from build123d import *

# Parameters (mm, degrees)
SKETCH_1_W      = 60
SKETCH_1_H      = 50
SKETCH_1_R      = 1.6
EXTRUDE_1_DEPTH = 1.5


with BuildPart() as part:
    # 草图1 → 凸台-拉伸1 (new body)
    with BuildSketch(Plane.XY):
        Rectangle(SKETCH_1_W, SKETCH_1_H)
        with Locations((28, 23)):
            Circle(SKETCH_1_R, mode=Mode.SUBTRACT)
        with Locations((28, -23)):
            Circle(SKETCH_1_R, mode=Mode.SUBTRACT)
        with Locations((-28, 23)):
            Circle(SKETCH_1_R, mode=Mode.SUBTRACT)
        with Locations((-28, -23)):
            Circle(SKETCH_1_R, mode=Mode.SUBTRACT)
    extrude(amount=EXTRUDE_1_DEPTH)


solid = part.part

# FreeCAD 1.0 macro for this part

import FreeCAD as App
import Part
import Sketcher
Q = App.Units.Quantity

doc = App.newDocument("Part")
body = doc.addObject("PartDesign::Body", "Body")

# Sketch on XY plane
sketch1 = body.newObject("Sketcher::SketchObject", "Sketch")
sketch1.AttachmentSupport = (doc.getObject("XY_Plane"), [""])
sketch1.MapMode = "FlatFace"
sketch1.addGeometry([
    Part.LineSegment(App.Vector(-30, 25, 0), App.Vector(-30, -25, 0)),  # 0
    Part.LineSegment(App.Vector(-30, -25, 0), App.Vector(30, -25, 0)),  # 1
    Part.LineSegment(App.Vector(30, -25, 0), App.Vector(30, 25, 0)),  # 2
    Part.LineSegment(App.Vector(30, 25, 0), App.Vector(-30, 25, 0)),  # 3
    Part.Circle(App.Vector(-28, -23, 0), App.Vector(0, 0, 1), 1.6),  # 4
    Part.Circle(App.Vector(28, -23, 0), App.Vector(0, 0, 1), 1.6),  # 5
    Part.Circle(App.Vector(-28, 23, 0), App.Vector(0, 0, 1), 1.6),  # 6
    Part.Circle(App.Vector(28, 23, 0), App.Vector(0, 0, 1), 1.6),  # 7
], False)
sketch1.addConstraint([
    Sketcher.Constraint("Coincident", 0, 2, 1, 1),
    Sketcher.Constraint("Coincident", 1, 2, 2, 1),
    Sketcher.Constraint("Coincident", 2, 2, 3, 1),
    Sketcher.Constraint("Coincident", 3, 2, 0, 1),
    Sketcher.Constraint("Vertical", 0),
    Sketcher.Constraint("Horizontal", 1),
    Sketcher.Constraint("Vertical", 2),
    Sketcher.Constraint("Horizontal", 3),
    Sketcher.Constraint("Equal", 4, 5),
    Sketcher.Constraint("Equal", 5, 6),
    Sketcher.Constraint("Equal", 6, 7),
    Sketcher.Constraint("Symmetric", 5, 3, 6, 3, -1, 1),
    Sketcher.Constraint("Symmetric", 4, 3, 7, 3, -1, 1),
    Sketcher.Constraint("Symmetric", 0, 2, 2, 2, -1, 1),
    Sketcher.Constraint("Symmetric", 4, 3, 5, 3, -2),
    Sketcher.Constraint("Diameter", 4, Q("3.2 mm")),
    Sketcher.Constraint("DistanceX", 1, 1, 1, 2, Q("60 mm")),
    Sketcher.Constraint("DistanceY", 0, 2, 0, 1, Q("50 mm")),
    Sketcher.Constraint("DistanceX", 4, 3, -1, 1, Q("28 mm")),
    Sketcher.Constraint("DistanceY", 4, 3, -1, 1, Q("23 mm")),
])
pad1 = body.newObject("PartDesign::Pad", "Pad")
pad1.Profile = sketch1
pad1.Length = 1.5

doc.recompute()
